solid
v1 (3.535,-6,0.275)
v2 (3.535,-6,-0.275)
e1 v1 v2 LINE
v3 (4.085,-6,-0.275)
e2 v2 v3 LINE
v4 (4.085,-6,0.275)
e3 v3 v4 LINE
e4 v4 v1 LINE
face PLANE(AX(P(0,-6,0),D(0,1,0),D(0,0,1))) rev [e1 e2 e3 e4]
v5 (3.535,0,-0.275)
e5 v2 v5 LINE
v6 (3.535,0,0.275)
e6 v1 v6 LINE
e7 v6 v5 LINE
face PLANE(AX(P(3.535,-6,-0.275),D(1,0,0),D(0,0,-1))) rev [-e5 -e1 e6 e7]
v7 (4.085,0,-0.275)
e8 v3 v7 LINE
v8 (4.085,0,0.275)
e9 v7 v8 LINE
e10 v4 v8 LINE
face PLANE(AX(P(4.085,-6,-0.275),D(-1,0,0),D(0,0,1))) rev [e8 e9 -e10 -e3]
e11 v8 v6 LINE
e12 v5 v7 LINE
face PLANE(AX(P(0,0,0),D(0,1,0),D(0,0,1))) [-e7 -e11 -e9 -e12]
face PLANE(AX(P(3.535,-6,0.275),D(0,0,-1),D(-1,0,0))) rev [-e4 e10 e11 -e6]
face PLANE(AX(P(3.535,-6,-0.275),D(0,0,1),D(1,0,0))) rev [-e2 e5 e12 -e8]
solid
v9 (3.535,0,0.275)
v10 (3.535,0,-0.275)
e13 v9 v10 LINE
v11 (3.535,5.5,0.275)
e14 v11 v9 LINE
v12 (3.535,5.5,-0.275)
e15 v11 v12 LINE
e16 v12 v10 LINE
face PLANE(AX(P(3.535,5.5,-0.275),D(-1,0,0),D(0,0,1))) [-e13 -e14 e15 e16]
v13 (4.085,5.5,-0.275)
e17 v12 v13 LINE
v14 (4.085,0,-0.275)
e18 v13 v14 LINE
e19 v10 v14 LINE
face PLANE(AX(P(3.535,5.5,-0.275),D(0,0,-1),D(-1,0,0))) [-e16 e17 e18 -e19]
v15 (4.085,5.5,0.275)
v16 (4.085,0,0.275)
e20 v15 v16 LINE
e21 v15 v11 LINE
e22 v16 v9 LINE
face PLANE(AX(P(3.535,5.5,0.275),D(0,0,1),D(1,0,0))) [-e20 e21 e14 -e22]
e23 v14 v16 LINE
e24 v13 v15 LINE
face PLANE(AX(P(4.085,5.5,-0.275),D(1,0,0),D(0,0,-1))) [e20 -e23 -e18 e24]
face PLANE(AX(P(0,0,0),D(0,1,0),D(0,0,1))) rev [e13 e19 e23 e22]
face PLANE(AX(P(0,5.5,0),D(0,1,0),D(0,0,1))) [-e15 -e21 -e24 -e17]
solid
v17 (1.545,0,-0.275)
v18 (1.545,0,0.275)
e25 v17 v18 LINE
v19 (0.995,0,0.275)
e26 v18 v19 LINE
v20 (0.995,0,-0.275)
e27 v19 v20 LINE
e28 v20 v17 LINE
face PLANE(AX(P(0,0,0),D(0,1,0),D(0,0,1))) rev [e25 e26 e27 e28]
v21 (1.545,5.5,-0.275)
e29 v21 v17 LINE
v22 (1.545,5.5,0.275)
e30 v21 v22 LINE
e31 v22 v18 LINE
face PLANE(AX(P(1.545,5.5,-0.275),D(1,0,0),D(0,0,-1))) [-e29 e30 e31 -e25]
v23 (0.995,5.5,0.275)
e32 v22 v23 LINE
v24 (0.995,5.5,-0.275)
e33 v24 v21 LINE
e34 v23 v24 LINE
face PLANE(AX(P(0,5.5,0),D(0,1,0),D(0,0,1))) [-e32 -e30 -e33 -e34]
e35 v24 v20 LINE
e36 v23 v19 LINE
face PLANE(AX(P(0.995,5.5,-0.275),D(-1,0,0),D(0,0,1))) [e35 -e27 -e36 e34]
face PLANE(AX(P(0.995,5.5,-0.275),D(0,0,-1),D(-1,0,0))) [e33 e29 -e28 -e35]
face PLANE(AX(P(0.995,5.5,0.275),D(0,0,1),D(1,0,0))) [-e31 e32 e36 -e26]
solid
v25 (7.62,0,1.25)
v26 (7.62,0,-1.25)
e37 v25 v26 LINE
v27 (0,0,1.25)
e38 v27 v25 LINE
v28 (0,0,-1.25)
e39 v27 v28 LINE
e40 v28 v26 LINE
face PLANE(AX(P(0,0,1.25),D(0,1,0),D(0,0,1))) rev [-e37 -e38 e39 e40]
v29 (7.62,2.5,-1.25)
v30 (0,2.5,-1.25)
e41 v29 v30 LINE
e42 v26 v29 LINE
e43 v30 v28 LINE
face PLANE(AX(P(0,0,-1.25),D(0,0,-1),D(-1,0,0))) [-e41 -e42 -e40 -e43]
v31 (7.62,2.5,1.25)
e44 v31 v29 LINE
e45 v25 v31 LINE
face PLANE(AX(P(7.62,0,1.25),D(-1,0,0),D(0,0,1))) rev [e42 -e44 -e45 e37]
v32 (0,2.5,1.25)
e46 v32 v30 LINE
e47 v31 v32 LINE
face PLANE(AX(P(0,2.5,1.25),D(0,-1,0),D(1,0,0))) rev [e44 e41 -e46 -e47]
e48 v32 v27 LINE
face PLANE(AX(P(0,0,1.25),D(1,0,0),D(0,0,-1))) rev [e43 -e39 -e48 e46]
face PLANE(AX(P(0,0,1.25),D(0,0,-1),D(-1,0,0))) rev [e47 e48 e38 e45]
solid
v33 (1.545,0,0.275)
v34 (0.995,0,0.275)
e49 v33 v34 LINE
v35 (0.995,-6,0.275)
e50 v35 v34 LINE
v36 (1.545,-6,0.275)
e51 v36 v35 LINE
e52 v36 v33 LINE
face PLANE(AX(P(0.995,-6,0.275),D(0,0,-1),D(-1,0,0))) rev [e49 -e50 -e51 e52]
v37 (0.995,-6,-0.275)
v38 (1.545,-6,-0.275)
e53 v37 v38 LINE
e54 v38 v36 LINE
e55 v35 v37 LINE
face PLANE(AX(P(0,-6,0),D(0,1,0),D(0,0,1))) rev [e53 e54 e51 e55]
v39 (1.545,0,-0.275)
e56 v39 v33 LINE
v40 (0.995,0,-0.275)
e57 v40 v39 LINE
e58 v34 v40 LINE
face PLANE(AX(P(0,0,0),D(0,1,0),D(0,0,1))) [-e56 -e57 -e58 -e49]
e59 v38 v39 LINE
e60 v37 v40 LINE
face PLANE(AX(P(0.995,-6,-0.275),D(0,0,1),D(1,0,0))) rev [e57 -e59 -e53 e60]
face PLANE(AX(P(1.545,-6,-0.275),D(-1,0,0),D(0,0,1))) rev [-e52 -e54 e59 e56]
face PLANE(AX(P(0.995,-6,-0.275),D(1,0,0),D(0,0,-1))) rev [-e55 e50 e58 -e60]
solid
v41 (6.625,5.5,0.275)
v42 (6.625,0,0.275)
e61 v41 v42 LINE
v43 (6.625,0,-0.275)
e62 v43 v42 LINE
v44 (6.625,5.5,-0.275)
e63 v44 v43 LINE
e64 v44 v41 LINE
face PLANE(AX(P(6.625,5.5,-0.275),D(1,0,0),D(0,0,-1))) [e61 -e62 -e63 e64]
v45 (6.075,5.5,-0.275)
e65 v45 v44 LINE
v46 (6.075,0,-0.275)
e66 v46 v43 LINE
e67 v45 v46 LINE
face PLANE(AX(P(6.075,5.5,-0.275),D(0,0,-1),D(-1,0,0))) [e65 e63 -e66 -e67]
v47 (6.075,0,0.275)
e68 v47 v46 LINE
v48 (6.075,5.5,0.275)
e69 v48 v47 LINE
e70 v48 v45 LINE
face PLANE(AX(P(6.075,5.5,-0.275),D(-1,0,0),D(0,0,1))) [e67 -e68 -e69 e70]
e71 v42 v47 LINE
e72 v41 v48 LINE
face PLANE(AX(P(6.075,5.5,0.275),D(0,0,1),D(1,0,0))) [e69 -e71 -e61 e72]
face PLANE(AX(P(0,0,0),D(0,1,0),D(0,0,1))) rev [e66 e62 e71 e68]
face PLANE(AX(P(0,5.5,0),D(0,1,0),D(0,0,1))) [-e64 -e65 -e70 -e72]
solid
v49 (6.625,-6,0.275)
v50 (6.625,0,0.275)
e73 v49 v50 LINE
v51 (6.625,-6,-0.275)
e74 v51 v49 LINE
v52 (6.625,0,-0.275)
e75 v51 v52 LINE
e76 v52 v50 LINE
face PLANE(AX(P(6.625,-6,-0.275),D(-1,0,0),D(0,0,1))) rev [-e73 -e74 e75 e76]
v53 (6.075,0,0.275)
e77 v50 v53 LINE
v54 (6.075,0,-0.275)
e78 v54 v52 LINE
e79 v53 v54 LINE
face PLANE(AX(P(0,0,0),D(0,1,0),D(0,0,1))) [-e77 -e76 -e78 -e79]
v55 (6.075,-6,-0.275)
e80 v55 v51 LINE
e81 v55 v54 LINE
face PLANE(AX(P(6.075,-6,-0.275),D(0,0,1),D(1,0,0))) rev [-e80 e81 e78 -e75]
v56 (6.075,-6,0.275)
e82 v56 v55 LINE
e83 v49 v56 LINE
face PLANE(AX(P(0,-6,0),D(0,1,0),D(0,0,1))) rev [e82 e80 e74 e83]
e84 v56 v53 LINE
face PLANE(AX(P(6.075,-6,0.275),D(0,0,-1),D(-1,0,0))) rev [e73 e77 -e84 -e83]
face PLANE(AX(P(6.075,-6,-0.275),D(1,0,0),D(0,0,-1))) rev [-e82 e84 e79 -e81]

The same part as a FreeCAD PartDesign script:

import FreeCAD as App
import Part
import Sketcher
from FreeCAD import Vector


def add_polygon(sketch, points):
    """Adds a closed chain of lines whose ends are joined by coincident constraints."""
    first, n = sketch.GeometryCount, len(points)
    for a, b in zip(points, points[1:] + points[:1]):
        sketch.addGeometry(Part.LineSegment(App.Vector(*a, 0), App.Vector(*b, 0)), False)
    for i in range(n):
        sketch.addConstraint(Sketcher.Constraint("Coincident", first + i, 2, first + (i + 1) % n, 1))

doc = App.newDocument("Part")
body = doc.addObject("PartDesign::Body", "Body")

sketch1 = body.newObject("Sketcher::SketchObject", "Sketch")
sketch1.AttachmentSupport = (doc.getObject("XY_Plane"), [""])
sketch1.MapMode = "FlatFace"
add_polygon(sketch1, [(0, 2.5), (0, 0), (7.6, 0), (7.6, 2.5)])
sketch1.addConstraint(Sketcher.Constraint("Vertical", 0))
sketch1.addConstraint(Sketcher.Constraint("Horizontal", 1))
sketch1.addConstraint(Sketcher.Constraint("Vertical", 2))
sketch1.addConstraint(Sketcher.Constraint("Horizontal", 3))
sketch1.addConstraint(Sketcher.Constraint("Coincident", 0, 2, -1, 1))
sketch1.addConstraint(Sketcher.Constraint("DistanceY", 0, 2, 0, 1, 2.5))
sketch1.addConstraint(Sketcher.Constraint("DistanceX", 1, 1, 1, 2, 7.62))
pad1 = body.newObject("PartDesign::Pad", "Pad")
pad1.Profile = sketch1
pad1.Length = 2.5
pad1.Midplane = True
body2 = doc.addObject("PartDesign::Body", "Body001")

sketch2 = body2.newObject("Sketcher::SketchObject", "Sketch001")
sketch2.AttachmentSupport = (doc.getObject("XZ_Plane001"), [""])
sketch2.MapMode = "FlatFace"
add_polygon(sketch2, [(3.5, 0.3), (3.5, -0.3), (4.1, -0.3), (4.1, 0.3)])
sketch2.addConstraint(Sketcher.Constraint("Vertical", 0))
sketch2.addConstraint(Sketcher.Constraint("Horizontal", 1))
sketch2.addConstraint(Sketcher.Constraint("Vertical", 2))
sketch2.addConstraint(Sketcher.Constraint("Horizontal", 3))
sketch2.addConstraint(Sketcher.Constraint("Equal", 3, 0))
sketch2.addConstraint(Sketcher.Constraint("DistanceX", 1, 1, 1, 2, 0.55))
sketch2.addConstraint(Sketcher.Constraint("DistanceX", -1, 1, 0, 2, 3.535))
sketch2.addConstraint(Sketcher.Constraint("DistanceY", 0, 2, -1, 1, 0.275))
pad2 = body2.newObject("PartDesign::Pad", "Pad001")
pad2.Profile = sketch2
pad2.Length = 6
body3 = doc.addObject("PartDesign::Body", "Body002")

sketch3 = body3.newObject("Sketcher::SketchObject", "Sketch002")
sketch3.AttachmentSupport = (doc.getObject("XZ_Plane002"), [""])
sketch3.MapMode = "FlatFace"
add_polygon(sketch3, [(1, 0.3), (1, -0.3), (1.5, -0.3), (1.5, 0.3)])
sketch3.addConstraint(Sketcher.Constraint("Vertical", 0))
sketch3.addConstraint(Sketcher.Constraint("Horizontal", 1))
sketch3.addConstraint(Sketcher.Constraint("Vertical", 2))
sketch3.addConstraint(Sketcher.Constraint("Horizontal", 3))
sketch3.addConstraint(Sketcher.Constraint("Equal", 3, 0))
sketch3.addConstraint(Sketcher.Constraint("DistanceX", 1, 1, 1, 2, 0.55))
sketch3.addConstraint(Sketcher.Constraint("DistanceX", -1, 1, 0, 2, 0.995))
sketch3.addConstraint(Sketcher.Constraint("DistanceY", 0, 2, -1, 1, 0.275))
pad3 = body3.newObject("PartDesign::Pad", "Pad002")
pad3.Profile = sketch3
pad3.Length = 6
body4 = doc.addObject("PartDesign::Body", "Body003")

sketch4 = body4.newObject("Sketcher::SketchObject", "Sketch003")
sketch4.AttachmentSupport = (doc.getObject("XZ_Plane003"), [""])
sketch4.MapMode = "FlatFace"
add_polygon(sketch4, [(6.1, 0.3), (6.1, -0.3), (6.6, -0.3), (6.6, 0.3)])
sketch4.addConstraint(Sketcher.Constraint("Vertical", 0))
sketch4.addConstraint(Sketcher.Constraint("Horizontal", 1))
sketch4.addConstraint(Sketcher.Constraint("Vertical", 2))
sketch4.addConstraint(Sketcher.Constraint("Horizontal", 3))
sketch4.addConstraint(Sketcher.Constraint("Equal", 3, 0))
sketch4.addConstraint(Sketcher.Constraint("DistanceX", 1, 1, 1, 2, 0.55))
sketch4.addConstraint(Sketcher.Constraint("DistanceX", -1, 1, 0, 2, 6.075))
sketch4.addConstraint(Sketcher.Constraint("DistanceY", 0, 2, -1, 1, 0.275))
pad4 = body4.newObject("PartDesign::Pad", "Pad003")
pad4.Profile = sketch4
pad4.Length = 6
body5 = doc.addObject("PartDesign::Body", "Body004")

sketch5 = body5.newObject("Sketcher::SketchObject", "Sketch004")
sketch5.AttachmentSupport = (doc.getObject("XZ_Plane004"), [""])
sketch5.MapMode = "FlatFace"
add_polygon(sketch5, [(3.5, 0.3), (3.5, -0.3), (4.1, -0.3), (4.1, 0.3)])
sketch5.addConstraint(Sketcher.Constraint("Vertical", 0))
sketch5.addConstraint(Sketcher.Constraint("Horizontal", 1))
sketch5.addConstraint(Sketcher.Constraint("Vertical", 2))
sketch5.addConstraint(Sketcher.Constraint("Horizontal", 3))
sketch5.addConstraint(Sketcher.Constraint("Equal", 3, 0))
sketch5.addConstraint(Sketcher.Constraint("DistanceX", 1, 1, 1, 2, 0.55))
sketch5.addConstraint(Sketcher.Constraint("DistanceX", -1, 1, 0, 2, 3.535))
sketch5.addConstraint(Sketcher.Constraint("DistanceY", 0, 2, -1, 1, 0.275))
pad5 = body5.newObject("PartDesign::Pad", "Pad004")
pad5.Profile = sketch5
pad5.Length = 5.5
pad5.Reversed = True
body6 = doc.addObject("PartDesign::Body", "Body005")

sketch6 = body6.newObject("Sketcher::SketchObject", "Sketch005")
sketch6.AttachmentSupport = (doc.getObject("XZ_Plane005"), [""])
sketch6.MapMode = "FlatFace"
add_polygon(sketch6, [(1, 0.3), (1, -0.3), (1.5, -0.3), (1.5, 0.3)])
sketch6.addConstraint(Sketcher.Constraint("Vertical", 0))
sketch6.addConstraint(Sketcher.Constraint("Horizontal", 1))
sketch6.addConstraint(Sketcher.Constraint("Vertical", 2))
sketch6.addConstraint(Sketcher.Constraint("Horizontal", 3))
sketch6.addConstraint(Sketcher.Constraint("Equal", 3, 0))
sketch6.addConstraint(Sketcher.Constraint("DistanceX", 1, 1, 1, 2, 0.55))
sketch6.addConstraint(Sketcher.Constraint("DistanceX", -1, 1, 0, 2, 0.995))
sketch6.addConstraint(Sketcher.Constraint("DistanceY", 0, 2, -1, 1, 0.275))
pad6 = body6.newObject("PartDesign::Pad", "Pad005")
pad6.Profile = sketch6
pad6.Length = 5.5
pad6.Reversed = True
body7 = doc.addObject("PartDesign::Body", "Body006")

sketch7 = body7.newObject("Sketcher::SketchObject", "Sketch006")
sketch7.AttachmentSupport = (doc.getObject("XZ_Plane006"), [""])
sketch7.MapMode = "FlatFace"
add_polygon(sketch7, [(6.1, 0.3), (6.1, -0.3), (6.6, -0.3), (6.6, 0.3)])
sketch7.addConstraint(Sketcher.Constraint("Vertical", 0))
sketch7.addConstraint(Sketcher.Constraint("Horizontal", 1))
sketch7.addConstraint(Sketcher.Constraint("Vertical", 2))
sketch7.addConstraint(Sketcher.Constraint("Horizontal", 3))
sketch7.addConstraint(Sketcher.Constraint("Equal", 3, 0))
sketch7.addConstraint(Sketcher.Constraint("DistanceX", 1, 1, 1, 2, 0.55))
sketch7.addConstraint(Sketcher.Constraint("DistanceX", -1, 1, 0, 2, 6.075))
sketch7.addConstraint(Sketcher.Constraint("DistanceY", 0, 2, -1, 1, 0.275))
pad7 = body7.newObject("PartDesign::Pad", "Pad006")
pad7.Profile = sketch7
pad7.Length = 5.5
pad7.Reversed = True

doc.recompute()
